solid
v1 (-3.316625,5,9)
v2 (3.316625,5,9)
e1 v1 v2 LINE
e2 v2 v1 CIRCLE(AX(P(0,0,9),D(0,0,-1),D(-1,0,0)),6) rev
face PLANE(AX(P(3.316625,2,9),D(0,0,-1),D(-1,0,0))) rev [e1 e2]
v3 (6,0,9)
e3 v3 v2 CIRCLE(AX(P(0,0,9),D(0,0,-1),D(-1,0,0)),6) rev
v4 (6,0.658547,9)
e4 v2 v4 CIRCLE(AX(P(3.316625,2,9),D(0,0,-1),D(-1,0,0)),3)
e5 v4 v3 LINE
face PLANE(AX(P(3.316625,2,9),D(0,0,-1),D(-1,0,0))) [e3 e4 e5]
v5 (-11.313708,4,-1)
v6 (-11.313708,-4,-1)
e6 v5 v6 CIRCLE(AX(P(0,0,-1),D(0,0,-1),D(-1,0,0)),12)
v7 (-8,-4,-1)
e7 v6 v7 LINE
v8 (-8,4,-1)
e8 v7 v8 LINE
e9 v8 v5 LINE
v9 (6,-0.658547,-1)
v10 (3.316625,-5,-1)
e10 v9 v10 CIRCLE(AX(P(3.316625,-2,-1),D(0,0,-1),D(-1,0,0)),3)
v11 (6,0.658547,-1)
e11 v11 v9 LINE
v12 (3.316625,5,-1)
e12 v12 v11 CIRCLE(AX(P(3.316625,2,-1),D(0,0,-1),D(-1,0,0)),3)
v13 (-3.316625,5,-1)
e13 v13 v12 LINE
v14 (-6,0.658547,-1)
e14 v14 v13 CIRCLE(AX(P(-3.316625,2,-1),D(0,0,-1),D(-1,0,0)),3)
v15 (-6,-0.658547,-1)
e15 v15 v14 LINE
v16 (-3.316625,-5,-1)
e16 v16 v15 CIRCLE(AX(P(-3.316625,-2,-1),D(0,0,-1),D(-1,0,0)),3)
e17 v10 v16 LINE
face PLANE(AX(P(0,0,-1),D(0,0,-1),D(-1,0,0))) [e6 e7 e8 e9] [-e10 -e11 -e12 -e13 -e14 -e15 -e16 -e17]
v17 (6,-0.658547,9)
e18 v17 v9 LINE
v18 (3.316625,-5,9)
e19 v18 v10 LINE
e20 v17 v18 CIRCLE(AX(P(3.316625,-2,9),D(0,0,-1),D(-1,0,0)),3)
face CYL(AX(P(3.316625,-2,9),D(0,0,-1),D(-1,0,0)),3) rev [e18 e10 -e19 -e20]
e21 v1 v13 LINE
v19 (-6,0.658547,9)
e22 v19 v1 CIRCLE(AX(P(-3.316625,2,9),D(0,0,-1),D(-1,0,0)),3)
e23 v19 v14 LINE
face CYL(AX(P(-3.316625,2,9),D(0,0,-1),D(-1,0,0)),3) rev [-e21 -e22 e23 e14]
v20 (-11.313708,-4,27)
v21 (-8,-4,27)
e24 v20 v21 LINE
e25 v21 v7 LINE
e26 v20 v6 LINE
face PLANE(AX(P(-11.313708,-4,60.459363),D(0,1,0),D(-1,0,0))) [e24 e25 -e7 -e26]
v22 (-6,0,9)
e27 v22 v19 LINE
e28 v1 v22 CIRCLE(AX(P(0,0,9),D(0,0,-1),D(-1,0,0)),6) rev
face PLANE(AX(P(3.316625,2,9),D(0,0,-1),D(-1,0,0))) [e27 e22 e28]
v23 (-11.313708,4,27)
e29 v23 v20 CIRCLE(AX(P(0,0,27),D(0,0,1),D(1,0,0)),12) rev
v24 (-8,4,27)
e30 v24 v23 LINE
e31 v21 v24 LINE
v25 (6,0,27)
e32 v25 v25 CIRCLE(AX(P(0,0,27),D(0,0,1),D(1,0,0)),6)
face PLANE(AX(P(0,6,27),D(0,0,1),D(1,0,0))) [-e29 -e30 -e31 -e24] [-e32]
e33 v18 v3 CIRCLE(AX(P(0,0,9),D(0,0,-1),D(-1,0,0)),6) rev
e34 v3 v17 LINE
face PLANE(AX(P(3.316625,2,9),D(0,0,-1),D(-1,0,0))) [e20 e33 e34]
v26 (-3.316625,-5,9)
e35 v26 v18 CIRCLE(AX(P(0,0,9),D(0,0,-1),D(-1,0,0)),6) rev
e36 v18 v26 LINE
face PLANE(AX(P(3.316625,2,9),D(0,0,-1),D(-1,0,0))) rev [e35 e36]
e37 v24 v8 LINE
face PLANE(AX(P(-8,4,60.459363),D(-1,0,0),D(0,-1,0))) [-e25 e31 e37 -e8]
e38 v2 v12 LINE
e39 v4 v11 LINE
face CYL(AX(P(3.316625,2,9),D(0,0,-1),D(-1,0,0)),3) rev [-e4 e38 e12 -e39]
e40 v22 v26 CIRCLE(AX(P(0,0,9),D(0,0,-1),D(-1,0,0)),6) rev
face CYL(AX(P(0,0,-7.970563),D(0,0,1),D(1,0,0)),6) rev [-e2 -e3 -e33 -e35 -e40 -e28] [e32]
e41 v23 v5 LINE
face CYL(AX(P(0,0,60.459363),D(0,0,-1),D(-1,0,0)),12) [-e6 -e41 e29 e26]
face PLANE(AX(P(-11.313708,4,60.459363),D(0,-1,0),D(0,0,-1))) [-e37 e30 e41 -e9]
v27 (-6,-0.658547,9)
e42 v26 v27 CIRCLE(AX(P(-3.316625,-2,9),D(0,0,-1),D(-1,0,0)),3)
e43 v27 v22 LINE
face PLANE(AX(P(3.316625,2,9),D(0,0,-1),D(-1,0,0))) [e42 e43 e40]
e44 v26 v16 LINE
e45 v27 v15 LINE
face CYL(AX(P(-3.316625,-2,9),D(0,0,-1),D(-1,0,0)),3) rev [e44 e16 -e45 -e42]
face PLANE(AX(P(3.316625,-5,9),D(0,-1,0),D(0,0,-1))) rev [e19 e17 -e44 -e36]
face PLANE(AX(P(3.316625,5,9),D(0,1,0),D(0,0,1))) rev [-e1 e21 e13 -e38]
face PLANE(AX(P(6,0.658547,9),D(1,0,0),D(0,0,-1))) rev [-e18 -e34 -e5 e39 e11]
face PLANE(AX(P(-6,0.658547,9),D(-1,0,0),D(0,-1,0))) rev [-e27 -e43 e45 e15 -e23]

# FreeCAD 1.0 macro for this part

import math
import FreeCAD as App
import Part
import Sketcher
Q = App.Units.Quantity

doc = App.newDocument("Part")
params = doc.addObject("Spreadsheet::Sheet", "Params")
for row, (alias, value) in enumerate([
    ("sketch1_radius", "12 mm"),
    ("sketch1_height", "8 mm"),
    ("pad1_length", "28 mm"),
    ("sketch2_radius", "3 mm"),
    ("pocket1_length", "10 mm"),
    ("sketch3_diameter", "12 mm"),
    ("pocket2_length", "18 mm"),
], start=1):
    params.set(f"A{row}", alias)
    params.set(f"B{row}", "=" + value)
    params.setAlias(f"B{row}", alias)

body = doc.addObject("PartDesign::Body", "Body")

sketch1 = body.newObject("Sketcher::SketchObject", "Sketch")
sketch1.AttachmentSupport = (doc.getObject("XY_Plane"), [""])
sketch1.MapMode = "FlatFace"
sketch1.AttachmentOffset = App.Placement(App.Vector(0, 0, -1), App.Rotation())
sketch1.addGeometry(Part.LineSegment(App.Vector(-8, 4, 0), App.Vector(-11.3, 4, 0)), False)
sketch1.addGeometry(Part.ArcOfCircle(Part.Circle(App.Vector(0, 0, 0), App.Vector(0, 0, 1), 12), math.radians(-161), math.radians(161)), False)
sketch1.addGeometry(Part.LineSegment(App.Vector(-11.3, -4, 0), App.Vector(-8, -4, 0)), False)
sketch1.addGeometry(Part.LineSegment(App.Vector(-8, -4, 0), App.Vector(-8, 4, 0)), False)
sketch1.addConstraint(Sketcher.Constraint("Coincident", 0, 2, 1, 2))
sketch1.addConstraint(Sketcher.Constraint("Coincident", 1, 1, 2, 1))
sketch1.addConstraint(Sketcher.Constraint("Coincident", 2, 2, 3, 1))
sketch1.addConstraint(Sketcher.Constraint("Coincident", 3, 2, 0, 1))
sketch1.addConstraint(Sketcher.Constraint("Horizontal", 0))
sketch1.addConstraint(Sketcher.Constraint("Horizontal", 2))
sketch1.addConstraint(Sketcher.Constraint("Vertical", 3))
sketch1.addConstraint(Sketcher.Constraint("Coincident", 1, 3, -1, 1))
sketch1.addConstraint(Sketcher.Constraint("Vertical", 0, 2, 1, 1))
sketch1.addConstraint(Sketcher.Constraint("Radius", 1, Q("12 mm")))
sketch1.addConstraint(Sketcher.Constraint("DistanceY", 3, 1, 3, 2, Q("8 mm")))
sketch1.addConstraint(Sketcher.Constraint("DistanceX", 2, 2, -1, 1, Q("8 mm")))
sketch1.setExpression("Constraints[9]", "Params.sketch1_radius")
sketch1.setExpression("Constraints[10]", "Params.sketch1_height")
pad1 = body.newObject("PartDesign::Pad", "Pad")
pad1.Profile = sketch1
pad1.setExpression("Length", "Params.pad1_length")

sketch2 = body.newObject("Sketcher::SketchObject", "Sketch001")
sketch2.AttachmentSupport = (doc.getObject("XY_Plane"), [""])
sketch2.MapMode = "FlatFace"
sketch2.AttachmentOffset = App.Placement(App.Vector(0, 0, -1), App.Rotation())
sketch2.addGeometry(Part.LineSegment(App.Vector(-3.3, 5, 0), App.Vector(3.3, 5, 0)), False)
sketch2.addGeometry(Part.ArcOfCircle(Part.Circle(App.Vector(3.3, 2, 0), App.Vector(0, 0, 1), 3), math.radians(-27), math.radians(90)), False)
sketch2.addGeometry(Part.LineSegment(App.Vector(6, 0.7, 0), App.Vector(6, -0.7, 0)), False)
sketch2.addGeometry(Part.ArcOfCircle(Part.Circle(App.Vector(3.3, -2, 0), App.Vector(0, 0, 1), 3), math.radians(-90), math.radians(27)), False)
sketch2.addGeometry(Part.LineSegment(App.Vector(3.3, -5, 0), App.Vector(-3.3, -5, 0)), False)
sketch2.addGeometry(Part.ArcOfCircle(Part.Circle(App.Vector(-3.3, -2, 0), App.Vector(0, 0, 1), 3), math.radians(153), math.radians(270)), False)
sketch2.addGeometry(Part.LineSegment(App.Vector(-6, -0.7, 0), App.Vector(-6, 0.7, 0)), False)
sketch2.addGeometry(Part.ArcOfCircle(Part.Circle(App.Vector(-3.3, 2, 0), App.Vector(0, 0, 1), 3), math.radians(90), math.radians(207)), False)
sketch2.addConstraint(Sketcher.Constraint("Tangent", 0, 2, 1, 2))
sketch2.addConstraint(Sketcher.Constraint("Coincident", 1, 1, 2, 1))
sketch2.addConstraint(Sketcher.Constraint("Coincident", 2, 2, 3, 2))
sketch2.addConstraint(Sketcher.Constraint("Tangent", 3, 1, 4, 1))
sketch2.addConstraint(Sketcher.Constraint("Tangent", 4, 2, 5, 2))
sketch2.addConstraint(Sketcher.Constraint("Coincident", 5, 1, 6, 1))
sketch2.addConstraint(Sketcher.Constraint("Coincident", 6, 2, 7, 2))
sketch2.addConstraint(Sketcher.Constraint("Tangent", 7, 1, 0, 1))
sketch2.addConstraint(Sketcher.Constraint("Horizontal", 0))
sketch2.addConstraint(Sketcher.Constraint("Vertical", 2))
sketch2.addConstraint(Sketcher.Constraint("Horizontal", 4))
sketch2.addConstraint(Sketcher.Constraint("Vertical", 6))
sketch2.addConstraint(Sketcher.Constraint("Equal", 1, 3))
sketch2.addConstraint(Sketcher.Constraint("Equal", 3, 5))
sketch2.addConstraint(Sketcher.Constraint("Equal", 5, 7))
sketch2.addConstraint(Sketcher.Constraint("Symmetric", 1, 3, 5, 3, -1, 1))
sketch2.addConstraint(Sketcher.Constraint("Symmetric", 2, 2, 6, 2, -1, 1))
sketch2.addConstraint(Sketcher.Constraint("Horizontal", 2, 2, 5, 1))
sketch2.addConstraint(Sketcher.Constraint("Radius", 1, Q("3 mm")))
sketch2.addConstraint(Sketcher.Constraint("DistanceY", -1, 1, 1, 3, Q("2 mm")))
sketch2.addConstraint(Sketcher.Constraint("DistanceX", -1, 1, 1, 1, Q("6 mm")))
sketch2.addConstraint(Sketcher.Constraint("DistanceX", 0, 1, 0, 2, Q("6.63325 mm")))
sketch2.setExpression("Constraints[18]", "Params.sketch2_radius")
pocket1 = body.newObject("PartDesign::Pocket", "Pocket")
pocket1.Profile = sketch2
pocket1.setExpression("Length", "Params.pocket1_length")
pocket1.Reversed = True

sketch3 = body.newObject("Sketcher::SketchObject", "Sketch002")
sketch3.AttachmentSupport = (doc.getObject("XY_Plane"), [""])
sketch3.MapMode = "FlatFace"
sketch3.AttachmentOffset = App.Placement(App.Vector(0, 0, 27), App.Rotation())
sketch3.addGeometry(Part.Circle(App.Vector(0, 0, 0), App.Vector(0, 0, 1), 6), False)
sketch3.addConstraint(Sketcher.Constraint("Coincident", 0, 3, -1, 1))
sketch3.addConstraint(Sketcher.Constraint("Diameter", 0, Q("12 mm")))
sketch3.setExpression("Constraints[1]", "Params.sketch3_diameter")
pocket2 = body.newObject("PartDesign::Pocket", "Pocket001")
pocket2.Profile = sketch3
pocket2.setExpression("Length", "Params.pocket2_length")

doc.recompute()
